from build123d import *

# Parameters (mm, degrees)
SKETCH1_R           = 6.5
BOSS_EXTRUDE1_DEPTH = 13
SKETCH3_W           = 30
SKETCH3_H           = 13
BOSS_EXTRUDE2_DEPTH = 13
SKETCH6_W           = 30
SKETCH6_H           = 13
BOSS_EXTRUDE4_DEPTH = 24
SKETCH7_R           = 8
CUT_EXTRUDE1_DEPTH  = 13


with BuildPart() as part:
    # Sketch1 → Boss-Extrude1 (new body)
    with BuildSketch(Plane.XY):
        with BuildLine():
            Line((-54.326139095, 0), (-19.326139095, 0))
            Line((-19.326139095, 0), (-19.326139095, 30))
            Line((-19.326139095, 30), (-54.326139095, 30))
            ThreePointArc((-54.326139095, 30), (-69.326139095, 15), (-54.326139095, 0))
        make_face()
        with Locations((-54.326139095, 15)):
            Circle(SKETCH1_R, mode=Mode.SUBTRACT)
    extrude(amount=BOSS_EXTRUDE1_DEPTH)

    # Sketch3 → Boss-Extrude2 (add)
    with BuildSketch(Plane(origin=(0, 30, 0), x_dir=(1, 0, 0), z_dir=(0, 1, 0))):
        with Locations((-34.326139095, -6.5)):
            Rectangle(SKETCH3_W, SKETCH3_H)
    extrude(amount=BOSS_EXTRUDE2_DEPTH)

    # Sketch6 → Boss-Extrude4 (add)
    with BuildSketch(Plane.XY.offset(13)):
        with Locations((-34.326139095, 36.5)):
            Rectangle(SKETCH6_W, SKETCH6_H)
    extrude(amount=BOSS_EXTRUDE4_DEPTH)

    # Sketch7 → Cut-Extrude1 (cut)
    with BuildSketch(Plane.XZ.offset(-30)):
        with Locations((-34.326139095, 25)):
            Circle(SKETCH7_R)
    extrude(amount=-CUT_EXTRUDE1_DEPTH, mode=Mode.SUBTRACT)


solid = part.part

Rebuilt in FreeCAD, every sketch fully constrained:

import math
import FreeCAD as App
import Part
import Sketcher

V = App.Vector
Q = App.Units.Quantity

doc = App.newDocument("Part")
body = doc.addObject("PartDesign::Body", "Body")

# Sketch on XY plane
sketch1 = body.newObject("Sketcher::SketchObject", "Sketch")
sketch1.AttachmentSupport = (doc.getObject("XY_Plane"), [""])
sketch1.MapMode = "FlatFace"
sketch1.addGeometry([
    Part.LineSegment(V(-54, 0, 0), V(-19, 0, 0)),  # 0
    Part.LineSegment(V(-19, 0, 0), V(-19, 30, 0)),  # 1
    Part.LineSegment(V(-19, 30, 0), V(-54, 30, 0)),  # 2
    Part.ArcOfCircle(Part.Circle(V(-54, 15, 0), V(0, 0, 1), 15), math.radians(90), math.radians(270)),  # 3
    Part.Circle(V(-54, 15, 0), V(0, 0, 1), 6),  # 4
], False)
sketch1.addConstraint([
    Sketcher.Constraint("Coincident", 0, 2, 1, 1),
    Sketcher.Constraint("Coincident", 1, 2, 2, 1),
    Sketcher.Constraint("Tangent", 2, 2, 3, 1),
    Sketcher.Constraint("Tangent", 3, 2, 0, 1),
    Sketcher.Constraint("Horizontal", 0),
    Sketcher.Constraint("Vertical", 1),
    Sketcher.Constraint("Horizontal", 2),
    Sketcher.Constraint("Coincident", 4, 3, 3, 3),
    Sketcher.Constraint("PointOnObject", 0, 2, -1),
    Sketcher.Constraint("Diameter", 4, Q("13 mm")),
    Sketcher.Constraint("Radius", 3, Q("15 mm")),
    Sketcher.Constraint("DistanceX", 0, 1, 0, 2, Q("35 mm")),
    Sketcher.Constraint("DistanceX", 3, 3, -1, 1, Q("54.326139 mm")),
])
pad1 = body.newObject("PartDesign::Pad", "Pad")
pad1.Profile = sketch1
pad1.Length = 13

# Sketch on XZ plane
sketch2 = body.newObject("Sketcher::SketchObject", "Sketch001")
sketch2.AttachmentSupport = (doc.getObject("XZ_Plane"), [""])
sketch2.MapMode = "FlatFace"
sketch2.AttachmentOffset = App.Placement(V(0, 0, -30), App.Rotation())
sketch2.addGeometry([
    Part.LineSegment(V(-49, 0, 0), V(-49, 13, 0)),
    Part.LineSegment(V(-49, 13, 0), V(-19, 13, 0)),
    Part.LineSegment(V(-19, 13, 0), V(-19, 0, 0)),
    Part.LineSegment(V(-19, 0, 0), V(-49, 0, 0)),
], False)
sketch2.addConstraint([
    Sketcher.Constraint("Coincident", 0, 2, 1, 1),
    Sketcher.Constraint("Coincident", 1, 2, 2, 1),
    Sketcher.Constraint("Coincident", 2, 2, 3, 1),
    Sketcher.Constraint("Coincident", 3, 2, 0, 1),
    Sketcher.Constraint("Vertical", 0),
    Sketcher.Constraint("Horizontal", 1),
    Sketcher.Constraint("Vertical", 2),
    Sketcher.Constraint("Horizontal", 3),
    Sketcher.Constraint("PointOnObject", 2, 2, -1),
    Sketcher.Constraint("DistanceX", 1, 1, 1, 2, Q("30 mm")),
    Sketcher.Constraint("DistanceY", 0, 1, 0, 2, Q("13 mm")),
    Sketcher.Constraint("DistanceX", 0, 2, -1, 1, Q("49.326139 mm")),
])
pad2 = body.newObject("PartDesign::Pad", "Pad001")
pad2.Profile = sketch2
pad2.Length = 13
pad2.Reversed = True

# Sketch on XY plane
sketch3 = body.newObject("Sketcher::SketchObject", "Sketch002")
sketch3.AttachmentSupport = (doc.getObject("XY_Plane"), [""])
sketch3.MapMode = "FlatFace"
sketch3.AttachmentOffset = App.Placement(V(0, 0, 13), App.Rotation())
sketch3.addGeometry([
    Part.LineSegment(V(-49, 43, 0), V(-49, 30, 0)),
    Part.LineSegment(V(-49, 30, 0), V(-19, 30, 0)),
    Part.LineSegment(V(-19, 30, 0), V(-19, 43, 0)),
    Part.LineSegment(V(-19, 43, 0), V(-49, 43, 0)),
], False)
sketch3.addConstraint([
    Sketcher.Constraint("Coincident", 0, 2, 1, 1),
    Sketcher.Constraint("Coincident", 1, 2, 2, 1),
    Sketcher.Constraint("Coincident", 2, 2, 3, 1),
    Sketcher.Constraint("Coincident", 3, 2, 0, 1),
    Sketcher.Constraint("Vertical", 0),
    Sketcher.Constraint("Horizontal", 1),
    Sketcher.Constraint("Vertical", 2),
    Sketcher.Constraint("Horizontal", 3),
    Sketcher.Constraint("DistanceX", 1, 1, 1, 2, Q("30 mm")),
    Sketcher.Constraint("DistanceY", 0, 2, 0, 1, Q("13 mm")),
    Sketcher.Constraint("DistanceY", -1, 1, 0, 2, Q("30 mm")),
    Sketcher.Constraint("DistanceX", 0, 2, -1, 1, Q("49.326139 mm")),
])
pad3 = body.newObject("PartDesign::Pad", "Pad002")
pad3.Profile = sketch3
pad3.Length = 24

# Sketch on XZ plane
sketch4 = body.newObject("Sketcher::SketchObject", "Sketch003")
sketch4.AttachmentSupport = (doc.getObject("XZ_Plane"), [""])
sketch4.MapMode = "FlatFace"
sketch4.AttachmentOffset = App.Placement(V(0, 0, -30), App.Rotation())
sketch4.addGeometry(Part.Circle(V(-34, 25, 0), V(0, 0, 1), 8), False)
sketch4.addConstraint([
    Sketcher.Constraint("Diameter", 0, Q("16 mm")),
    Sketcher.Constraint("DistanceY", -1, 1, 0, 3, Q("25 mm")),
    Sketcher.Constraint("DistanceX", 0, 3, -1, 1, Q("34.326139 mm")),
])
pocket1 = body.newObject("PartDesign::Pocket", "Pocket")
pocket1.Profile = sketch4
pocket1.Length = 13

doc.recompute()
